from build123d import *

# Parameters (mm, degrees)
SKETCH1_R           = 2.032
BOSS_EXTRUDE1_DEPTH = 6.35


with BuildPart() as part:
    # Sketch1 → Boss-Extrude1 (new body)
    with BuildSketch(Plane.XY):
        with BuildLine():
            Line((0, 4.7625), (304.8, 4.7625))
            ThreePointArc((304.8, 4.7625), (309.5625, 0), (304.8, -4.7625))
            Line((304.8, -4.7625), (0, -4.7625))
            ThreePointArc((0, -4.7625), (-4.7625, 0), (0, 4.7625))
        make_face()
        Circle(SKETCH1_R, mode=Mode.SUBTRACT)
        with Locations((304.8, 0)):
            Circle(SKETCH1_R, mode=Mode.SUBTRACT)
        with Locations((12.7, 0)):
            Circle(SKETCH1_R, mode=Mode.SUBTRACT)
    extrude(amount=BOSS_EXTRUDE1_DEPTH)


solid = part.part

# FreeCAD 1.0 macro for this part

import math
import FreeCAD as App
import Part
import Sketcher

V = App.Vector
Q = App.Units.Quantity

doc = App.newDocument("Part")
body = doc.addObject("PartDesign::Body", "Body")

sketch1 = body.newObject("Sketcher::SketchObject", "Sketch")
sketch1.AttachmentSupport = (doc.getObject("XY_Plane"), [""])
sketch1.MapMode = "FlatFace"
sketch1.addGeometry(Part.LineSegment(V(304.8, 4.8, 0), V(0, 4.8, 0)), False)
sketch1.addGeometry(Part.ArcOfCircle(Part.Circle(V(0, 0, 0), V(0, 0, 1), 4.8), math.radians(90), math.radians(270)), False)
sketch1.addGeometry(Part.LineSegment(V(0, -4.8, 0), V(304.8, -4.8, 0)), False)
sketch1.addGeometry(Part.ArcOfCircle(Part.Circle(V(304.8, 0, 0), V(0, 0, 1), 4.8), math.radians(-90), math.radians(90)), False)
sketch1.addGeometry(Part.Circle(V(304.8, 0, 0), V(0, 0, 1), 2), False)
sketch1.addGeometry(Part.Circle(V(12.7, 0, 0), V(0, 0, 1), 2), False)
sketch1.addGeometry(Part.Circle(V(0, 0, 0), V(0, 0, 1), 2), False)
sketch1.addConstraint(Sketcher.Constraint("Tangent", 0, 2, 1, 1))
sketch1.addConstraint(Sketcher.Constraint("Tangent", 1, 2, 2, 1))
sketch1.addConstraint(Sketcher.Constraint("Tangent", 2, 2, 3, 1))
sketch1.addConstraint(Sketcher.Constraint("Tangent", 3, 2, 0, 1))
sketch1.addConstraint(Sketcher.Constraint("Horizontal", 0))
sketch1.addConstraint(Sketcher.Constraint("Horizontal", 2))
sketch1.addConstraint(Sketcher.Constraint("Coincident", 1, 3, -1, 1))
sketch1.addConstraint(Sketcher.Constraint("Coincident", 6, 3, -1, 1))
sketch1.addConstraint(Sketcher.Constraint("Coincident", 4, 3, 3, 3))
sketch1.addConstraint(Sketcher.Constraint("Equal", 4, 5))
sketch1.addConstraint(Sketcher.Constraint("Equal", 5, 6))
sketch1.addConstraint(Sketcher.Constraint("PointOnObject", 5, 3, -1))
sketch1.addConstraint(Sketcher.Constraint("Diameter", 4, Q("0.16 in")))
sketch1.addConstraint(Sketcher.Constraint("DistanceX", 0, 2, 0, 1, Q("12 in")))
sketch1.addConstraint(Sketcher.Constraint("Radius", 1, Q("0.1875 in")))
sketch1.addConstraint(Sketcher.Constraint("DistanceX", -1, 1, 5, 3, Q("0.5 in")))
pad1 = body.newObject("PartDesign::Pad", "Pad")
pad1.Profile = sketch1
pad1.Length = Q("0.25 in")

doc.recompute()
